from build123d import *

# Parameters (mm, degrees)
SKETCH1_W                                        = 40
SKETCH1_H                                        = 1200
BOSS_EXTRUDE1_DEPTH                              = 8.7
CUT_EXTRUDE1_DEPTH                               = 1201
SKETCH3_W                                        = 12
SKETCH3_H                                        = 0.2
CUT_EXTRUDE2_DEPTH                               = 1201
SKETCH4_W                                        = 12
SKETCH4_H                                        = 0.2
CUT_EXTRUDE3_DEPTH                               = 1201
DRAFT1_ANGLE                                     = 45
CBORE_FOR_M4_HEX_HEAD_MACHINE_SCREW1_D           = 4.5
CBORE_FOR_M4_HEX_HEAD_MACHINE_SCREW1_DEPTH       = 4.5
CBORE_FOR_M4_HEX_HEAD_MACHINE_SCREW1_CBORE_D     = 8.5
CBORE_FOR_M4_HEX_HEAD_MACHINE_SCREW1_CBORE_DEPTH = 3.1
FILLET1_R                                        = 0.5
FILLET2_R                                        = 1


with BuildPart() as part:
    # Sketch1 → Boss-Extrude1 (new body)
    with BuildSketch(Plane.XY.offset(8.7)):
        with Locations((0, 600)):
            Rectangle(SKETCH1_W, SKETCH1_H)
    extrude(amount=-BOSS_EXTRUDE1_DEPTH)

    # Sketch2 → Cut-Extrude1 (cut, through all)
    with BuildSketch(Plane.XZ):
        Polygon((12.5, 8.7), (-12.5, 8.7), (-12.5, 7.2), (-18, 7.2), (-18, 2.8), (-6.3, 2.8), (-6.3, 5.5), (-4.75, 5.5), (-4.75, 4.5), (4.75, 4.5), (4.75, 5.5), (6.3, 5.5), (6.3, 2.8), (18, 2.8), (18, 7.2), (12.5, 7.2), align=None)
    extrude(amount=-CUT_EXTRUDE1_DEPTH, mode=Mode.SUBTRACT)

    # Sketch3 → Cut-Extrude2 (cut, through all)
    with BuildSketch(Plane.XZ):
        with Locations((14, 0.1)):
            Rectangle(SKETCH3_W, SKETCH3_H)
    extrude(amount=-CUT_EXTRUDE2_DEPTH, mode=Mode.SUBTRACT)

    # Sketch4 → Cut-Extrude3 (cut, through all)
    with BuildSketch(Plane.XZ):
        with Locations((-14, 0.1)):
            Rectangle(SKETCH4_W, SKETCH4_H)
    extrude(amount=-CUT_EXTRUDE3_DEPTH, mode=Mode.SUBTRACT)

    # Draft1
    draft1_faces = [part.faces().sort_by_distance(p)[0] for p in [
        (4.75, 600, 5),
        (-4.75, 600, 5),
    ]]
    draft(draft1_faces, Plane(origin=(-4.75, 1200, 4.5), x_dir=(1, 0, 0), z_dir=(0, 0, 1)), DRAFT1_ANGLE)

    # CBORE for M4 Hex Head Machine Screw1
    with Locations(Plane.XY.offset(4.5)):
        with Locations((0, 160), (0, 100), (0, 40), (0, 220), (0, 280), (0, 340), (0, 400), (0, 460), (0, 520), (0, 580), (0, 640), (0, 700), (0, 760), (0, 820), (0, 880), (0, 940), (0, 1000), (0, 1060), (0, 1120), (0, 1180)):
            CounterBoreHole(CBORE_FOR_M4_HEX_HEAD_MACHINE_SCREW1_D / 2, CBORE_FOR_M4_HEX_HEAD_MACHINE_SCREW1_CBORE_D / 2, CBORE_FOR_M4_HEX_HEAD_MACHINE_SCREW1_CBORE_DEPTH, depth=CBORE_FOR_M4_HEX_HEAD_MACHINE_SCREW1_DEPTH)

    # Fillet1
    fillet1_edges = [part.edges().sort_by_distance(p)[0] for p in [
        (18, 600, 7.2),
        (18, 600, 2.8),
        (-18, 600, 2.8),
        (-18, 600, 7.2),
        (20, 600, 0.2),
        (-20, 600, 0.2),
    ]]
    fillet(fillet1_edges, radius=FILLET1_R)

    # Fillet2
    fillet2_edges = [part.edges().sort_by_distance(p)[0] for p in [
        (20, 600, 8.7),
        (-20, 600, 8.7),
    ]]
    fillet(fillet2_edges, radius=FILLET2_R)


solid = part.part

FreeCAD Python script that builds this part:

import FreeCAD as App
import Part
import Sketcher

V = App.Vector


def edges_at(feature, points):
    """Names of the edges that pass closest to the given points."""
    edges = feature.Shape.Edges
    near = lambda p: min(range(len(edges)), key=lambda i: edges[i].distToShape(Part.Vertex(*p))[0])
    return sorted({f"Edge{near(p) + 1}" for p in points})


def faces_at(feature, points):
    """Names of the faces that lie closest to the given points."""
    faces = feature.Shape.Faces
    near = lambda p: min(range(len(faces)), key=lambda i: faces[i].distToShape(Part.Vertex(*p))[0])
    return sorted({f"Face{near(p) + 1}" for p in points})


def add_polygon(sketch, points):
    """Adds a closed chain of lines whose ends are joined by coincident constraints."""
    first, n = sketch.GeometryCount, len(points)
    for a, b in zip(points, points[1:] + points[:1]):
        sketch.addGeometry(Part.LineSegment(App.Vector(*a, 0), App.Vector(*b, 0)), False)
    for i in range(n):
        sketch.addConstraint(Sketcher.Constraint("Coincident", first + i, 2, first + (i + 1) % n, 1))

doc = App.newDocument("Part")
params = doc.addObject("Spreadsheet::Sheet", "Params")
for row, (alias, value) in enumerate([
    ("sketch1_width", "40 mm"),
    ("sketch1_height", "1200 mm"),
    ("pad1_length", "8.7 mm"),
    ("sketch2_width", "25 mm"),
    ("sketch2_height", "1 mm"),
    ("sketch2_width2", "5.5 mm"),
    ("sketch2_width3", "11.7 mm"),
    ("sketch2_width4", "9.5 mm"),
    ("sketch3_width", "12 mm"),
    ("sketch3_height", "0.2 mm"),
    ("sketch4_width", "12 mm"),
    ("sketch4_height", "0.2 mm"),
    ("draft_angle", "45 deg"),
    ("sketch5_diameter", "4.5 mm"),
    ("hole_diameter", "4.5 mm"),
    ("hole_depth", "4.5 mm"),
    ("hole_cbore_diameter", "8.5 mm"),
    ("hole_cbore_depth", "3.1 mm"),
    ("fillet_radius", "0.5 mm"),
    ("fillet2_radius", "1 mm"),
], start=1):
    params.set(f"A{row}", alias)
    params.set(f"B{row}", "=" + value)
    params.setAlias(f"B{row}", alias)

body = doc.addObject("PartDesign::Body", "Body")

# Sketch on XY plane
sketch1 = body.newObject("Sketcher::SketchObject", "Sketch")
sketch1.AttachmentSupport = (doc.getObject("XY_Plane"), [""])
sketch1.MapMode = "FlatFace"
sketch1.AttachmentOffset = App.Placement(V(0, 0, 8.7), App.Rotation())
add_polygon(sketch1, [(-20, 1200), (-20, 0), (20, 0), (20, 1200)])  # lines 0-3
sketch1.addConstraint([
    Sketcher.Constraint("Vertical", 0),
    Sketcher.Constraint("Horizontal", 1),
    Sketcher.Constraint("Vertical", 2),
    Sketcher.Constraint("Horizontal", 3),
    Sketcher.Constraint("Symmetric", 0, 2, 1, 2, -1, 1),
    Sketcher.Constraint("DistanceX", 1, 1, 1, 2, 40.0),
    Sketcher.Constraint("DistanceY", 0, 2, 0, 1, 1200.0),
])
sketch1.setExpression("Constraints[9]", "Params.sketch1_width")
sketch1.setExpression("Constraints[10]", "Params.sketch1_height")
pad1 = body.newObject("PartDesign::Pad", "Pad")
pad1.Profile = sketch1
pad1.setExpression("Length", "Params.pad1_length")
pad1.Reversed = True

# Sketch on XZ plane
sketch2 = body.newObject("Sketcher::SketchObject", "Sketch001")
sketch2.AttachmentSupport = (doc.getObject("XZ_Plane"), [""])
sketch2.MapMode = "FlatFace"
add_polygon(sketch2, [(12.5, 8.7), (-12.5, 8.7), (-12.5, 7.2), (-18, 7.2), (-18, 2.8), (-6.3, 2.8), (-6.3, 5.5), (-4.75, 5.5), (-4.75, 4.5), (4.75, 4.5), (4.75, 5.5), (6.3, 5.5), (6.3, 2.8), (18, 2.8), (18, 7.2), (12.5, 7.2)])  # lines 0-15
sketch2.addConstraint([
    Sketcher.Constraint("Horizontal", 0),
    Sketcher.Constraint("Vertical", 1),
    Sketcher.Constraint("Horizontal", 2),
    Sketcher.Constraint("Vertical", 3),
    Sketcher.Constraint("Horizontal", 4),
    Sketcher.Constraint("Vertical", 5),
    Sketcher.Constraint("Horizontal", 6),
    Sketcher.Constraint("Vertical", 7),
    Sketcher.Constraint("Horizontal", 8),
    Sketcher.Constraint("Vertical", 9),
    Sketcher.Constraint("Horizontal", 10),
    Sketcher.Constraint("Vertical", 11),
    Sketcher.Constraint("Horizontal", 12),
    Sketcher.Constraint("Vertical", 13),
    Sketcher.Constraint("Horizontal", 14),
    Sketcher.Constraint("Vertical", 15),
    Sketcher.Constraint("Symmetric", 6, 2, 9, 2, -2),
    Sketcher.Constraint("Symmetric", 4, 2, 11, 2, -2),
    Sketcher.Constraint("Symmetric", 2, 2, 13, 2, -2),
    Sketcher.Constraint("Equal", 2, 14),
    Sketcher.Constraint("DistanceX", 0, 2, 0, 1, 25.0),
    Sketcher.Constraint("DistanceY", 7, 2, 7, 1, 1.0),
    Sketcher.Constraint("DistanceX", 2, 2, 2, 1, 5.5),
    Sketcher.Constraint("DistanceX", 4, 1, 4, 2, 11.7),
    Sketcher.Constraint("DistanceX", 8, 1, 8, 2, 9.5),
    Sketcher.Constraint("DistanceY", 1, 2, 1, 1, 1.5),
    Sketcher.Constraint("DistanceY", 3, 2, 3, 1, 4.4),
    Sketcher.Constraint("DistanceY", 5, 1, 5, 2, 2.7),
    Sketcher.Constraint("DistanceY", -1, 1, 0, 2, 8.7),
])
sketch2.setExpression("Constraints[36]", "Params.sketch2_width")
sketch2.setExpression("Constraints[37]", "Params.sketch2_height")
sketch2.setExpression("Constraints[38]", "Params.sketch2_width2")
sketch2.setExpression("Constraints[39]", "Params.sketch2_width3")
sketch2.setExpression("Constraints[40]", "Params.sketch2_width4")
pocket1 = body.newObject("PartDesign::Pocket", "Pocket")
pocket1.Profile = sketch2
pocket1.Type = "ThroughAll"

# Sketch on XZ plane
sketch3 = body.newObject("Sketcher::SketchObject", "Sketch002")
sketch3.AttachmentSupport = (doc.getObject("XZ_Plane"), [""])
sketch3.MapMode = "FlatFace"
add_polygon(sketch3, [(8, 0.2), (8, 0), (20, 0), (20, 0.2)])  # lines 0-3
sketch3.addConstraint([
    Sketcher.Constraint("Vertical", 0),
    Sketcher.Constraint("Horizontal", 1),
    Sketcher.Constraint("Vertical", 2),
    Sketcher.Constraint("Horizontal", 3),
    Sketcher.Constraint("PointOnObject", 0, 2, -1),
    Sketcher.Constraint("DistanceX", 1, 1, 1, 2, 12.0),
    Sketcher.Constraint("DistanceY", 0, 2, 0, 1, 0.2),
    Sketcher.Constraint("DistanceX", -1, 1, 0, 2, 8.0),
])
sketch3.setExpression("Constraints[9]", "Params.sketch3_width")
sketch3.setExpression("Constraints[10]", "Params.sketch3_height")
pocket2 = body.newObject("PartDesign::Pocket", "Pocket001")
pocket2.Profile = sketch3
pocket2.Type = "ThroughAll"

# Sketch on XZ plane
sketch4 = body.newObject("Sketcher::SketchObject", "Sketch003")
sketch4.AttachmentSupport = (doc.getObject("XZ_Plane"), [""])
sketch4.MapMode = "FlatFace"
add_polygon(sketch4, [(-20, 0.2), (-20, 0), (-8, 0), (-8, 0.2)])  # lines 0-3
sketch4.addConstraint([
    Sketcher.Constraint("Vertical", 0),
    Sketcher.Constraint("Horizontal", 1),
    Sketcher.Constraint("Vertical", 2),
    Sketcher.Constraint("Horizontal", 3),
    Sketcher.Constraint("PointOnObject", 0, 2, -1),
    Sketcher.Constraint("DistanceX", 1, 1, 1, 2, 12.0),
    Sketcher.Constraint("DistanceY", 0, 2, 0, 1, 0.2),
    Sketcher.Constraint("DistanceX", 0, 2, -1, 1, 20.0),
])
sketch4.setExpression("Constraints[9]", "Params.sketch4_width")
sketch4.setExpression("Constraints[10]", "Params.sketch4_height")
pocket3 = body.newObject("PartDesign::Pocket", "Pocket002")
pocket3.Profile = sketch4
pocket3.Type = "ThroughAll"
doc.recompute()

datumplane = body.newObject("PartDesign::Plane", "DatumPlane")
datumplane.AttachmentSupport = (doc.getObject("XY_Plane"), [""])
datumplane.MapMode = "FlatFace"
datumplane.AttachmentOffset = App.Placement(V(0, 0, 4.5), App.Rotation())
draft = body.newObject("PartDesign::Draft", "Draft")
draft.Base = (pocket3, faces_at(pocket3, [(4.75, 600, 5), (-4.75, 600, 5)]))
draft.NeutralPlane = (datumplane, [""])
draft.setExpression("Angle", "Params.draft_angle")
draft.Reversed = False

# Sketch on XY plane
sketch5 = body.newObject("Sketcher::SketchObject", "Sketch004")
sketch5.AttachmentSupport = (doc.getObject("XY_Plane"), [""])
sketch5.MapMode = "FlatFace"
sketch5.AttachmentOffset = App.Placement(V(0, 0, 4.5), App.Rotation())
sketch5.addGeometry([
    Part.Circle(V(0, 160, 0), V(0, 0, 1), 2.25),  # 0
    Part.Circle(V(0, 100, 0), V(0, 0, 1), 2.25),  # 1
    Part.Circle(V(0, 40, 0), V(0, 0, 1), 2.25),  # 2
    Part.Circle(V(0, 220, 0), V(0, 0, 1), 2.25),  # 3
    Part.Circle(V(0, 280, 0), V(0, 0, 1), 2.25),  # 4
    Part.Circle(V(0, 340, 0), V(0, 0, 1), 2.25),  # 5
    Part.Circle(V(0, 400, 0), V(0, 0, 1), 2.25),  # 6
    Part.Circle(V(0, 460, 0), V(0, 0, 1), 2.25),  # 7
    Part.Circle(V(0, 520, 0), V(0, 0, 1), 2.25),  # 8
    Part.Circle(V(0, 580, 0), V(0, 0, 1), 2.25),  # 9
    Part.Circle(V(0, 640, 0), V(0, 0, 1), 2.25),  # 10
    Part.Circle(V(0, 700, 0), V(0, 0, 1), 2.25),  # 11
    Part.Circle(V(0, 760, 0), V(0, 0, 1), 2.25),  # 12
    Part.Circle(V(0, 820, 0), V(0, 0, 1), 2.25),  # 13
    Part.Circle(V(0, 880, 0), V(0, 0, 1), 2.25),  # 14
    Part.Circle(V(0, 940, 0), V(0, 0, 1), 2.25),  # 15
    Part.Circle(V(0, 1000, 0), V(0, 0, 1), 2.25),  # 16
    Part.Circle(V(0, 1060, 0), V(0, 0, 1), 2.25),  # 17
    Part.Circle(V(0, 1120, 0), V(0, 0, 1), 2.25),  # 18
    Part.Circle(V(0, 1180, 0), V(0, 0, 1), 2.25),  # 19
], False)
sketch5.addConstraint([
    Sketcher.Constraint("Equal", 0, 1),
    Sketcher.Constraint("Equal", 1, 2),
    Sketcher.Constraint("Equal", 2, 3),
    Sketcher.Constraint("Equal", 3, 4),
    Sketcher.Constraint("Equal", 4, 5),
    Sketcher.Constraint("Equal", 5, 6),
    Sketcher.Constraint("Equal", 6, 7),
    Sketcher.Constraint("Equal", 7, 8),
    Sketcher.Constraint("Equal", 8, 9),
    Sketcher.Constraint("Equal", 9, 10),
    Sketcher.Constraint("Equal", 10, 11),
    Sketcher.Constraint("Equal", 11, 12),
    Sketcher.Constraint("Equal", 12, 13),
    Sketcher.Constraint("Equal", 13, 14),
    Sketcher.Constraint("Equal", 14, 15),
    Sketcher.Constraint("Equal", 15, 16),
    Sketcher.Constraint("Equal", 16, 17),
    Sketcher.Constraint("Equal", 17, 18),
    Sketcher.Constraint("Equal", 18, 19),
    Sketcher.Constraint("PointOnObject", 0, 3, -2),
    Sketcher.Constraint("PointOnObject", 1, 3, -2),
    Sketcher.Constraint("PointOnObject", 2, 3, -2),
    Sketcher.Constraint("PointOnObject", 3, 3, -2),
    Sketcher.Constraint("PointOnObject", 4, 3, -2),
    Sketcher.Constraint("PointOnObject", 5, 3, -2),
    Sketcher.Constraint("PointOnObject", 6, 3, -2),
    Sketcher.Constraint("PointOnObject", 7, 3, -2),
    Sketcher.Constraint("PointOnObject", 8, 3, -2),
    Sketcher.Constraint("PointOnObject", 9, 3, -2),
    Sketcher.Constraint("PointOnObject", 10, 3, -2),
    Sketcher.Constraint("PointOnObject", 11, 3, -2),
    Sketcher.Constraint("PointOnObject", 12, 3, -2),
    Sketcher.Constraint("PointOnObject", 13, 3, -2),
    Sketcher.Constraint("PointOnObject", 14, 3, -2),
    Sketcher.Constraint("PointOnObject", 15, 3, -2),
    Sketcher.Constraint("PointOnObject", 16, 3, -2),
    Sketcher.Constraint("PointOnObject", 17, 3, -2),
    Sketcher.Constraint("PointOnObject", 18, 3, -2),
    Sketcher.Constraint("PointOnObject", 19, 3, -2),
    Sketcher.Constraint("Diameter", 0, 4.5),
    Sketcher.Constraint("DistanceY", -1, 1, 0, 3, 160.0),
    Sketcher.Constraint("DistanceY", -1, 1, 1, 3, 100.0),
    Sketcher.Constraint("DistanceY", -1, 1, 2, 3, 40.0),
    Sketcher.Constraint("DistanceY", -1, 1, 3, 3, 220.0),
    Sketcher.Constraint("DistanceY", -1, 1, 4, 3, 280.0),
    Sketcher.Constraint("DistanceY", -1, 1, 5, 3, 340.0),
    Sketcher.Constraint("DistanceY", -1, 1, 6, 3, 400.0),
    Sketcher.Constraint("DistanceY", -1, 1, 7, 3, 460.0),
    Sketcher.Constraint("DistanceY", -1, 1, 8, 3, 520.0),
    Sketcher.Constraint("DistanceY", -1, 1, 9, 3, 580.0),
    Sketcher.Constraint("DistanceY", -1, 1, 10, 3, 640.0),
    Sketcher.Constraint("DistanceY", -1, 1, 11, 3, 700.0),
    Sketcher.Constraint("DistanceY", -1, 1, 12, 3, 760.0),
    Sketcher.Constraint("DistanceY", -1, 1, 13, 3, 820.0),
    Sketcher.Constraint("DistanceY", -1, 1, 14, 3, 880.0),
    Sketcher.Constraint("DistanceY", -1, 1, 15, 3, 940.0),
    Sketcher.Constraint("DistanceY", -1, 1, 16, 3, 1000.0),
    Sketcher.Constraint("DistanceY", -1, 1, 17, 3, 1060.0),
    Sketcher.Constraint("DistanceY", -1, 1, 18, 3, 1120.0),
    Sketcher.Constraint("DistanceY", -1, 1, 19, 3, 1180.0),
])
sketch5.setExpression("Constraints[39]", "Params.sketch5_diameter")
doc.recompute()
hole = body.newObject("PartDesign::Hole", "Hole")
hole.Profile = sketch5
hole.ThreadType = "None"
hole.setExpression("Diameter", "Params.hole_diameter")
hole.DepthType = "Dimension"
hole.setExpression("Depth", "Params.hole_depth")
hole.DrillPoint = "Flat"
hole.HoleCutType = "Counterbore"
hole.setExpression("HoleCutDiameter", "Params.hole_cbore_diameter")
hole.setExpression("HoleCutDepth", "Params.hole_cbore_depth")
doc.recompute()

fillet = body.newObject("PartDesign::Fillet", "Fillet")
fillet.Base = (hole, edges_at(hole, [
    (18, 600, 7.2),
    (18, 600, 2.8),
    (-18, 600, 2.8),
    (-18, 600, 7.2),
    (20, 600, 0.2),
    (-20, 600, 0.2),
]))
fillet.setExpression("Radius", "Params.fillet_radius")
doc.recompute()

fillet2 = body.newObject("PartDesign::Fillet", "Fillet001")
fillet2.Base = (fillet, edges_at(fillet, [(20, 600, 8.7), (-20, 600, 8.7)]))
fillet2.setExpression("Radius", "Params.fillet2_radius")

doc.recompute()
